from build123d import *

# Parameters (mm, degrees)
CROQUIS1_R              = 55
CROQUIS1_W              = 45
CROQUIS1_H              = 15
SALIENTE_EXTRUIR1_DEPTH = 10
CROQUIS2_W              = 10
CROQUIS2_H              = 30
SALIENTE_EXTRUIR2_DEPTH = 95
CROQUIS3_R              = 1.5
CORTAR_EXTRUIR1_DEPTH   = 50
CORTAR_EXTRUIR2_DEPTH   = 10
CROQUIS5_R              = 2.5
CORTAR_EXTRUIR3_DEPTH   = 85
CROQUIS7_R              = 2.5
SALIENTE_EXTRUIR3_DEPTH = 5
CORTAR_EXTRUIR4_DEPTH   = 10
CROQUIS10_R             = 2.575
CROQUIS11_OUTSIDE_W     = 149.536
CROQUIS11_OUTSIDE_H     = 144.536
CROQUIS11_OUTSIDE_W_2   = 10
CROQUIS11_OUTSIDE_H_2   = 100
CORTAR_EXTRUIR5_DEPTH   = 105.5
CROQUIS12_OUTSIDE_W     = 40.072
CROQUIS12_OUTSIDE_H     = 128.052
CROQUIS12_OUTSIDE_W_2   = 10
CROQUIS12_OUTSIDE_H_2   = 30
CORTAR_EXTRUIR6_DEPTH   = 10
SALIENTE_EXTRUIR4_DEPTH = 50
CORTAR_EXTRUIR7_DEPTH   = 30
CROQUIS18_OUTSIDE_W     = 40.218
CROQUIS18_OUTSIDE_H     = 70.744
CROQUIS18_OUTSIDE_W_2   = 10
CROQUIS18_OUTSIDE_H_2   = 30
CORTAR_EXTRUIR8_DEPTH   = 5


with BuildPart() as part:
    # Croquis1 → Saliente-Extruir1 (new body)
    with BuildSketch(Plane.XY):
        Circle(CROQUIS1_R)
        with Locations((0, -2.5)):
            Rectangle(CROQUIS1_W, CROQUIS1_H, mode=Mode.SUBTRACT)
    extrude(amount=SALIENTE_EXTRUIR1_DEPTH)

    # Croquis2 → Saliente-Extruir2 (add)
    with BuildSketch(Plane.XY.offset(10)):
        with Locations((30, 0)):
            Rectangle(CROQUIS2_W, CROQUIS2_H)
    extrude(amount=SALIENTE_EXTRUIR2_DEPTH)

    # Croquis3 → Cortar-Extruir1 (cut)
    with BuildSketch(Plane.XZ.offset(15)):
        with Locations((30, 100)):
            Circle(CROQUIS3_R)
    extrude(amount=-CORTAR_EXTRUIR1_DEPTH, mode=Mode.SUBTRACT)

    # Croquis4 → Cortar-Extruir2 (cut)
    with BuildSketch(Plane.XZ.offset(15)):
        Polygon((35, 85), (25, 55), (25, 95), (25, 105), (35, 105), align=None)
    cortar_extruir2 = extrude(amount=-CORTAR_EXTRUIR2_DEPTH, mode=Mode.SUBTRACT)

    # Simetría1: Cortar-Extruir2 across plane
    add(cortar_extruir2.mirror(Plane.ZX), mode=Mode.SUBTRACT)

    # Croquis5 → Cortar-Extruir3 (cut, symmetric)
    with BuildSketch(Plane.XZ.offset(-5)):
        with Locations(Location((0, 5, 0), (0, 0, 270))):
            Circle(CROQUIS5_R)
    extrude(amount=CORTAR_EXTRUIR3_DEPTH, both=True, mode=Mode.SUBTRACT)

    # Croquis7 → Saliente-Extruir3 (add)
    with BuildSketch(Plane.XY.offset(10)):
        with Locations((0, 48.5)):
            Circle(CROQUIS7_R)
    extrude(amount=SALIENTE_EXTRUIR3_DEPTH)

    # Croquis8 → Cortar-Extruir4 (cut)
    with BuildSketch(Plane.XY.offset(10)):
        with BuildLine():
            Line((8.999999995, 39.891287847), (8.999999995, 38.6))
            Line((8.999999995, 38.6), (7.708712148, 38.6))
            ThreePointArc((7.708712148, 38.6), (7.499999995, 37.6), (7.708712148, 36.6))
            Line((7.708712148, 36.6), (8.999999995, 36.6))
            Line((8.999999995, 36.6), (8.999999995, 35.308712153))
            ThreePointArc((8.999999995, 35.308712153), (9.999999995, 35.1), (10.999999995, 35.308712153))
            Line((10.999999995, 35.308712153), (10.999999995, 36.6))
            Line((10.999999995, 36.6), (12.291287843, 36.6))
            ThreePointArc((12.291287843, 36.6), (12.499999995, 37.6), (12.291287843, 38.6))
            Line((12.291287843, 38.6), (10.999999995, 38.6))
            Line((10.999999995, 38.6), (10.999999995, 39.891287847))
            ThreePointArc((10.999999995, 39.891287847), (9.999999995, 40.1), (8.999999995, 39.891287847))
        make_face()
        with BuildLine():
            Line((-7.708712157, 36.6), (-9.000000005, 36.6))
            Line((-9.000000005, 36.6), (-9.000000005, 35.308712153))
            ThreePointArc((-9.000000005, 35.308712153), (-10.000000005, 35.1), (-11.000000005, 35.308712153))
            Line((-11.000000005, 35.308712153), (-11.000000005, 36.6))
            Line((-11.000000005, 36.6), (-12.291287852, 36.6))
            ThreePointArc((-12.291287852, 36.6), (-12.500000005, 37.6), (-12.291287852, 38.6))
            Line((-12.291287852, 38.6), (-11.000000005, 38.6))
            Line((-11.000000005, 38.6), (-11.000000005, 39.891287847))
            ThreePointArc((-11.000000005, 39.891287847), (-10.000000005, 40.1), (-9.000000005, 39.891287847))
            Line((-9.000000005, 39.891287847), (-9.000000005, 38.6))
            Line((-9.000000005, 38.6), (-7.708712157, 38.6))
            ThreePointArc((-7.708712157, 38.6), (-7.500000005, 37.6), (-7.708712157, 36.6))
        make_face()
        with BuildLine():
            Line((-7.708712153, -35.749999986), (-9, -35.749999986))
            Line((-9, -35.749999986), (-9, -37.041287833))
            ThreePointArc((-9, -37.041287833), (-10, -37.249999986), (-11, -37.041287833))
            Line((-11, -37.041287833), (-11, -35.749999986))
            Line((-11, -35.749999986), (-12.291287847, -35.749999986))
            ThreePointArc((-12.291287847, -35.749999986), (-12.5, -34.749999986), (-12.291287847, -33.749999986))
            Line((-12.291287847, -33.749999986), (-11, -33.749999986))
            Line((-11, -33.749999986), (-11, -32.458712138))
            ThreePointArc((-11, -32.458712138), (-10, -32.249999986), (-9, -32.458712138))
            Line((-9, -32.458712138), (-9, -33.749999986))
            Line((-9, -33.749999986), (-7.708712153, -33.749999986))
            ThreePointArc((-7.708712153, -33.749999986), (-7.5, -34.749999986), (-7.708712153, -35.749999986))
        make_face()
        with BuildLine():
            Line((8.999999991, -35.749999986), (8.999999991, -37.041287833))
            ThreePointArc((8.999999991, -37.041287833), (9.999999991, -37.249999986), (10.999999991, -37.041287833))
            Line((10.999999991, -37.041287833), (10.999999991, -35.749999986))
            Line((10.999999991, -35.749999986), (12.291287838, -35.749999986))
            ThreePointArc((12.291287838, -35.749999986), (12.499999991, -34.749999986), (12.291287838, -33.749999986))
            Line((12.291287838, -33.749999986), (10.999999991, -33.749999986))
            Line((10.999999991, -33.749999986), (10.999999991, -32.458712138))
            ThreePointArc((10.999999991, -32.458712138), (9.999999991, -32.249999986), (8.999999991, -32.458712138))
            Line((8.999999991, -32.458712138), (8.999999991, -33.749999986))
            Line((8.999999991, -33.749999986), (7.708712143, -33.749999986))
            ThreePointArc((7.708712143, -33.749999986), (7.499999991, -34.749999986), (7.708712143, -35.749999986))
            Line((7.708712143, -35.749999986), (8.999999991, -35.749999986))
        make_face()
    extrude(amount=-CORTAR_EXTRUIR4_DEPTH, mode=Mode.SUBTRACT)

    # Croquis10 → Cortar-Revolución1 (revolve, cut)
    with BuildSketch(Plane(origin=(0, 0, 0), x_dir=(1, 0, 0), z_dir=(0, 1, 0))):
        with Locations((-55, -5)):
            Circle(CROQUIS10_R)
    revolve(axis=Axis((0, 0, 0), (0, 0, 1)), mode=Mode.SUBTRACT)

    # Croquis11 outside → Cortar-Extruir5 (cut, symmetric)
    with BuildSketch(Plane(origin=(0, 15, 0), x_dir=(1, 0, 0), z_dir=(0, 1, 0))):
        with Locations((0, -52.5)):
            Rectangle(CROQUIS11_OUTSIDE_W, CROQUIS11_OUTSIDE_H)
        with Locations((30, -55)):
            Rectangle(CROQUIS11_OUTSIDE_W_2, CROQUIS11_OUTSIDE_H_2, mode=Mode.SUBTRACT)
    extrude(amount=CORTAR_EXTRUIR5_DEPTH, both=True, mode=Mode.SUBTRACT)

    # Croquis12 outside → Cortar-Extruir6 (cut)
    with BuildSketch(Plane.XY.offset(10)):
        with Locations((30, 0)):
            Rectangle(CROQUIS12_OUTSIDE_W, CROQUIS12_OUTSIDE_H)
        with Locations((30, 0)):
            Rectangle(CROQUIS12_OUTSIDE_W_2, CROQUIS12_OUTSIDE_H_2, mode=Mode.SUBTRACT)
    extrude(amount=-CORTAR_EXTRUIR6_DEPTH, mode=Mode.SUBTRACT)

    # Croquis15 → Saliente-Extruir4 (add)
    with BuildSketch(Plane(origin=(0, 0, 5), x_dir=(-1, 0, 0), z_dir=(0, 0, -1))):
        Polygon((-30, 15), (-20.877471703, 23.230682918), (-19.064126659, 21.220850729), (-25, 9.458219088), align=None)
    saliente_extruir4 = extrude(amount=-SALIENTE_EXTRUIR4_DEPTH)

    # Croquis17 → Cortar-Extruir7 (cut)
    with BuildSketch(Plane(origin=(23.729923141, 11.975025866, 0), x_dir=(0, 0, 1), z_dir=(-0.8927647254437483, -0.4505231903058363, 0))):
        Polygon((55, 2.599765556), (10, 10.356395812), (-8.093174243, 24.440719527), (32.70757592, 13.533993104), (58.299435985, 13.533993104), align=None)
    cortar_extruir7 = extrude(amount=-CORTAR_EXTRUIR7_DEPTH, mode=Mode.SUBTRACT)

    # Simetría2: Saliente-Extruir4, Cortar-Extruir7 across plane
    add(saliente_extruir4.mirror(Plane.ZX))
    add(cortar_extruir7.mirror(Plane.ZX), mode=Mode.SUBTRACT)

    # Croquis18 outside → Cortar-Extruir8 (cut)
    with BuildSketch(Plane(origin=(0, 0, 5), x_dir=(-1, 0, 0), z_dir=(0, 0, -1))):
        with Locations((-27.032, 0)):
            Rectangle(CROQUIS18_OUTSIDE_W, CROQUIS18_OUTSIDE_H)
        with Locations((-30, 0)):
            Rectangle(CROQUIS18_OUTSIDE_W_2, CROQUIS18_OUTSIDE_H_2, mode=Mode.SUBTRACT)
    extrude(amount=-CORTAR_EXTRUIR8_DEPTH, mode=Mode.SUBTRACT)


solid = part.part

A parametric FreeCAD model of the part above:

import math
import FreeCAD as App
import Part
import Sketcher
from FreeCAD import Vector


def add_polygon(sketch, points):
    """Adds a closed chain of lines whose ends are joined by coincident constraints."""
    first, n = sketch.GeometryCount, len(points)
    for a, b in zip(points, points[1:] + points[:1]):
        sketch.addGeometry(Part.LineSegment(App.Vector(*a, 0), App.Vector(*b, 0)), False)
    for i in range(n):
        sketch.addConstraint(Sketcher.Constraint("Coincident", first + i, 2, first + (i + 1) % n, 1))

doc = App.newDocument("Part")
body = doc.addObject("PartDesign::Body", "Body")

# Sketch on XY plane
sketch1 = doc.addObject("Sketcher::SketchObject", "Sketch")
body.addObject(sketch1)
sketch1.AttachmentSupport = (doc.XY_Plane, [""])
sketch1.MapMode = "FlatFace"
sketch1.addGeometry(Part.Circle(Vector(0, 0, 0), Vector(0, 0, 1), 55), False)  # 0
add_polygon(sketch1, [(22, -10), (-22, -10), (-22, 5), (22, 5)])  # lines 1-4
sketch1.addConstraint([
    Sketcher.Constraint("Horizontal", 1),
    Sketcher.Constraint("Vertical", 2),
    Sketcher.Constraint("Horizontal", 3),
    Sketcher.Constraint("Vertical", 4),
    Sketcher.Constraint("Coincident", 0, 3, -1, 1),
    Sketcher.Constraint("Diameter", 0, 110.0),
    Sketcher.Constraint("DistanceX", 1, 2, 1, 1, 45.0),
    Sketcher.Constraint("DistanceY", 2, 1, 2, 2, 15.0),
    Sketcher.Constraint("DistanceY", 1, 2, -1, 1, 10.0),
    Sketcher.Constraint("DistanceX", 1, 2, -1, 1, 22.5),
])
pad1 = doc.addObject("PartDesign::Pad", "Pad")
body.addObject(pad1)
pad1.Profile = sketch1
pad1.Length = 10

# Sketch on XY plane
sketch2 = doc.addObject("Sketcher::SketchObject", "Sketch001")
body.addObject(sketch2)
sketch2.AttachmentSupport = (doc.XY_Plane, [""])
sketch2.MapMode = "FlatFace"
sketch2.AttachmentOffset = App.Placement(Vector(0, 0, 10), App.Rotation())
add_polygon(sketch2, [(25, 15), (25, -15), (35, -15), (35, 15)])  # lines 0-3
sketch2.addConstraint([
    Sketcher.Constraint("Vertical", 0),
    Sketcher.Constraint("Horizontal", 1),
    Sketcher.Constraint("Vertical", 2),
    Sketcher.Constraint("Horizontal", 3),
    Sketcher.Constraint("DistanceX", 1, 1, 1, 2, 10.0),
    Sketcher.Constraint("DistanceY", 0, 2, 0, 1, 30.0),
    Sketcher.Constraint("DistanceX", -1, 1, 0, 2, 25.0),
    Sketcher.Constraint("DistanceY", 0, 2, -1, 1, 15.0),
])
pad2 = doc.addObject("PartDesign::Pad", "Pad001")
body.addObject(pad2)
pad2.Profile = sketch2
pad2.Length = 95

# Sketch on XZ plane
sketch3 = doc.addObject("Sketcher::SketchObject", "Sketch002")
body.addObject(sketch3)
sketch3.AttachmentSupport = (doc.XZ_Plane, [""])
sketch3.MapMode = "FlatFace"
sketch3.AttachmentOffset = App.Placement(Vector(0, 0, 15), App.Rotation())
sketch3.addGeometry(Part.Circle(Vector(30, 100, 0), Vector(0, 0, 1), 1.5), False)
sketch3.addConstraint([
    Sketcher.Constraint("Diameter", 0, 3.0),
    Sketcher.Constraint("DistanceX", -1, 1, 0, 3, 30.0),
    Sketcher.Constraint("DistanceY", -1, 1, 0, 3, 100.0),
])
pocket1 = doc.addObject("PartDesign::Pocket", "Pocket")
body.addObject(pocket1)
pocket1.Profile = sketch3
pocket1.Length = 50

# Sketch on XZ plane
sketch4 = doc.addObject("Sketcher::SketchObject", "Sketch003")
body.addObject(sketch4)
sketch4.AttachmentSupport = (doc.XZ_Plane, [""])
sketch4.MapMode = "FlatFace"
sketch4.AttachmentOffset = App.Placement(Vector(0, 0, 15), App.Rotation())
add_polygon(sketch4, [(25, 55), (35, 85), (35, 105), (25, 105)])  # lines 0-3
sketch4.addConstraint([
    Sketcher.Constraint("Vertical", 1),
    Sketcher.Constraint("Horizontal", 2),
    Sketcher.Constraint("Vertical", 3),
    Sketcher.Constraint("DistanceX", 2, 2, 2, 1, 10.0),
    Sketcher.Constraint("DistanceY", 1, 1, 1, 2, 20.0),
    Sketcher.Constraint("DistanceY", 3, 2, 3, 1, 50.0),
    Sketcher.Constraint("DistanceX", -1, 1, 0, 2, 35.0),
    Sketcher.Constraint("DistanceY", -1, 1, 0, 2, 85.0),
])
pocket2 = doc.addObject("PartDesign::Pocket", "Pocket001")
body.addObject(pocket2)
pocket2.Profile = sketch4
pocket2.Length = 10
doc.recompute()

mirrored = doc.addObject("PartDesign::Mirrored", "Mirrored")
body.addObject(mirrored)
mirrored.Originals = [pocket2]
mirrored.MirrorPlane = (doc.XZ_Plane, [""])
body.Tip = mirrored

# Sketch on XZ plane
sketch5 = doc.addObject("Sketcher::SketchObject", "Sketch004")
body.addObject(sketch5)
sketch5.AttachmentSupport = (doc.XZ_Plane, [""])
sketch5.MapMode = "FlatFace"
sketch5.AttachmentOffset = App.Placement(Vector(0, 0, -5), App.Rotation())
sketch5.addGeometry(Part.Circle(Vector(0, 5, 0), Vector(0, 0, 1), 2.5), False)
sketch5.addConstraint([
    Sketcher.Constraint("PointOnObject", 0, 3, -2),
    Sketcher.Constraint("Diameter", 0, 5.0),
    Sketcher.Constraint("DistanceY", -1, 1, 0, 3, 5.0),
])
pocket3 = doc.addObject("PartDesign::Pocket", "Pocket002")
body.addObject(pocket3)
pocket3.Profile = sketch5
pocket3.Length = 170
pocket3.Midplane = True

# Sketch on XY plane
sketch6 = doc.addObject("Sketcher::SketchObject", "Sketch005")
body.addObject(sketch6)
sketch6.AttachmentSupport = (doc.XY_Plane, [""])
sketch6.MapMode = "FlatFace"
sketch6.AttachmentOffset = App.Placement(Vector(0, 0, 10), App.Rotation())
sketch6.addGeometry(Part.Circle(Vector(0, 48.5, 0), Vector(0, 0, 1), 2.5), False)
sketch6.addConstraint([
    Sketcher.Constraint("PointOnObject", 0, 3, -2),
    Sketcher.Constraint("Diameter", 0, 5.0),
    Sketcher.Constraint("DistanceY", -1, 1, 0, 3, 48.5),
])
pad3 = doc.addObject("PartDesign::Pad", "Pad002")
body.addObject(pad3)
pad3.Profile = sketch6
pad3.Length = 5

# Sketch on XY plane
sketch7 = doc.addObject("Sketcher::SketchObject", "Sketch006")
body.addObject(sketch7)
sketch7.AttachmentSupport = (doc.XY_Plane, [""])
sketch7.MapMode = "FlatFace"
sketch7.AttachmentOffset = App.Placement(Vector(0, 0, 10), App.Rotation())
sketch7.addGeometry([
    Part.LineSegment(Vector(9, 39.9, 0), Vector(9, 38.6, 0)),  # 0
    Part.LineSegment(Vector(9, 38.6, 0), Vector(7.7, 38.6, 0)),  # 1
    Part.ArcOfCircle(Part.Circle(Vector(10, 37.6, 0), Vector(0, 0, 1), 2.5), math.radians(156), math.radians(204)),  # 2
    Part.LineSegment(Vector(7.7, 36.6, 0), Vector(9, 36.6, 0)),  # 3
    Part.LineSegment(Vector(9, 36.6, 0), Vector(9, 35.3, 0)),  # 4
    Part.ArcOfCircle(Part.Circle(Vector(10, 37.6, 0), Vector(0, 0, 1), 2.5), math.radians(-114), math.radians(-66)),  # 5
    Part.LineSegment(Vector(11, 35.3, 0), Vector(11, 36.6, 0)),  # 6
    Part.LineSegment(Vector(11, 36.6, 0), Vector(12.3, 36.6, 0)),  # 7
    Part.ArcOfCircle(Part.Circle(Vector(10, 37.6, 0), Vector(0, 0, 1), 2.5), math.radians(-24), math.radians(24)),  # 8
    Part.LineSegment(Vector(12.3, 38.6, 0), Vector(11, 38.6, 0)),  # 9
    Part.LineSegment(Vector(11, 38.6, 0), Vector(11, 39.9, 0)),  # 10
    Part.ArcOfCircle(Part.Circle(Vector(10, 37.6, 0), Vector(0, 0, 1), 2.5), math.radians(66), math.radians(114)),  # 11
    Part.LineSegment(Vector(-9, 36.6, 0), Vector(-7.7, 36.6, 0)),  # 12
    Part.ArcOfCircle(Part.Circle(Vector(-10, 37.6, 0), Vector(0, 0, 1), 2.5), math.radians(-24), math.radians(24)),  # 13
    Part.LineSegment(Vector(-7.7, 38.6, 0), Vector(-9, 38.6, 0)),  # 14
    Part.LineSegment(Vector(-9, 38.6, 0), Vector(-9, 39.9, 0)),  # 15
    Part.ArcOfCircle(Part.Circle(Vector(-10, 37.6, 0), Vector(0, 0, 1), 2.5), math.radians(66), math.radians(114)),  # 16
    Part.LineSegment(Vector(-11, 39.9, 0), Vector(-11, 38.6, 0)),  # 17
    Part.LineSegment(Vector(-11, 38.6, 0), Vector(-12.3, 38.6, 0)),  # 18
    Part.ArcOfCircle(Part.Circle(Vector(-10, 37.6, 0), Vector(0, 0, 1), 2.5), math.radians(156), math.radians(204)),  # 19
    Part.LineSegment(Vector(-12.3, 36.6, 0), Vector(-11, 36.6, 0)),  # 20
    Part.LineSegment(Vector(-11, 36.6, 0), Vector(-11, 35.3, 0)),  # 21
    Part.ArcOfCircle(Part.Circle(Vector(-10, 37.6, 0), Vector(0, 0, 1), 2.5), math.radians(-114), math.radians(-66)),  # 22
    Part.LineSegment(Vector(-9, 35.3, 0), Vector(-9, 36.6, 0)),  # 23
    Part.LineSegment(Vector(-9, -35.7, 0), Vector(-7.7, -35.7, 0)),  # 24
    Part.ArcOfCircle(Part.Circle(Vector(-10, -34.7, 0), Vector(0, 0, 1), 2.5), math.radians(-24), math.radians(24)),  # 25
    Part.LineSegment(Vector(-7.7, -33.7, 0), Vector(-9, -33.7, 0)),  # 26
    Part.LineSegment(Vector(-9, -33.7, 0), Vector(-9, -32.5, 0)),  # 27
    Part.ArcOfCircle(Part.Circle(Vector(-10, -34.7, 0), Vector(0, 0, 1), 2.5), math.radians(66), math.radians(114)),  # 28
    Part.LineSegment(Vector(-11, -32.5, 0), Vector(-11, -33.7, 0)),  # 29
    Part.LineSegment(Vector(-11, -33.7, 0), Vector(-12.3, -33.7, 0)),  # 30
    Part.ArcOfCircle(Part.Circle(Vector(-10, -34.7, 0), Vector(0, 0, 1), 2.5), math.radians(156), math.radians(204)),  # 31
    Part.LineSegment(Vector(-12.3, -35.7, 0), Vector(-11, -35.7, 0)),  # 32
    Part.LineSegment(Vector(-11, -35.7, 0), Vector(-11, -37, 0)),  # 33
    Part.ArcOfCircle(Part.Circle(Vector(-10, -34.7, 0), Vector(0, 0, 1), 2.5), math.radians(-114), math.radians(-66)),  # 34
    Part.LineSegment(Vector(-9, -37, 0), Vector(-9, -35.7, 0)),  # 35
    Part.LineSegment(Vector(9, -35.7, 0), Vector(9, -37, 0)),  # 36
    Part.ArcOfCircle(Part.Circle(Vector(10, -34.7, 0), Vector(0, 0, 1), 2.5), math.radians(-114), math.radians(-66)),  # 37
    Part.LineSegment(Vector(11, -37, 0), Vector(11, -35.7, 0)),  # 38
    Part.LineSegment(Vector(11, -35.7, 0), Vector(12.3, -35.7, 0)),  # 39
    Part.ArcOfCircle(Part.Circle(Vector(10, -34.7, 0), Vector(0, 0, 1), 2.5), math.radians(-24), math.radians(24)),  # 40
    Part.LineSegment(Vector(12.3, -33.7, 0), Vector(11, -33.7, 0)),  # 41
    Part.LineSegment(Vector(11, -33.7, 0), Vector(11, -32.5, 0)),  # 42
    Part.ArcOfCircle(Part.Circle(Vector(10, -34.7, 0), Vector(0, 0, 1), 2.5), math.radians(66), math.radians(114)),  # 43
    Part.LineSegment(Vector(9, -32.5, 0), Vector(9, -33.7, 0)),  # 44
    Part.LineSegment(Vector(9, -33.7, 0), Vector(7.7, -33.7, 0)),  # 45
    Part.ArcOfCircle(Part.Circle(Vector(10, -34.7, 0), Vector(0, 0, 1), 2.5), math.radians(156), math.radians(204)),  # 46
    Part.LineSegment(Vector(7.7, -35.7, 0), Vector(9, -35.7, 0)),  # 47
], False)
sketch7.addConstraint([
    Sketcher.Constraint("Coincident", 0, 2, 1, 1),
    Sketcher.Constraint("Coincident", 1, 2, 2, 1),
    Sketcher.Constraint("Coincident", 2, 2, 3, 1),
    Sketcher.Constraint("Coincident", 3, 2, 4, 1),
    Sketcher.Constraint("Coincident", 4, 2, 5, 1),
    Sketcher.Constraint("Coincident", 5, 2, 6, 1),
    Sketcher.Constraint("Coincident", 6, 2, 7, 1),
    Sketcher.Constraint("Coincident", 7, 2, 8, 1),
    Sketcher.Constraint("Coincident", 8, 2, 9, 1),
    Sketcher.Constraint("Coincident", 9, 2, 10, 1),
    Sketcher.Constraint("Coincident", 10, 2, 11, 1),
    Sketcher.Constraint("Coincident", 11, 2, 0, 1),
    Sketcher.Constraint("Coincident", 12, 2, 13, 1),
    Sketcher.Constraint("Coincident", 13, 2, 14, 1),
    Sketcher.Constraint("Coincident", 14, 2, 15, 1),
    Sketcher.Constraint("Coincident", 15, 2, 16, 1),
    Sketcher.Constraint("Coincident", 16, 2, 17, 1),
    Sketcher.Constraint("Coincident", 17, 2, 18, 1),
    Sketcher.Constraint("Coincident", 18, 2, 19, 1),
    Sketcher.Constraint("Coincident", 19, 2, 20, 1),
    Sketcher.Constraint("Coincident", 20, 2, 21, 1),
    Sketcher.Constraint("Coincident", 21, 2, 22, 1),
    Sketcher.Constraint("Coincident", 22, 2, 23, 1),
    Sketcher.Constraint("Coincident", 23, 2, 12, 1),
    Sketcher.Constraint("Coincident", 24, 2, 25, 1),
    Sketcher.Constraint("Coincident", 25, 2, 26, 1),
    Sketcher.Constraint("Coincident", 26, 2, 27, 1),
    Sketcher.Constraint("Coincident", 27, 2, 28, 1),
    Sketcher.Constraint("Coincident", 28, 2, 29, 1),
    Sketcher.Constraint("Coincident", 29, 2, 30, 1),
    Sketcher.Constraint("Coincident", 30, 2, 31, 1),
    Sketcher.Constraint("Coincident", 31, 2, 32, 1),
    Sketcher.Constraint("Coincident", 32, 2, 33, 1),
    Sketcher.Constraint("Coincident", 33, 2, 34, 1),
    Sketcher.Constraint("Coincident", 34, 2, 35, 1),
    Sketcher.Constraint("Coincident", 35, 2, 24, 1),
    Sketcher.Constraint("Coincident", 36, 2, 37, 1),
    Sketcher.Constraint("Coincident", 37, 2, 38, 1),
    Sketcher.Constraint("Coincident", 38, 2, 39, 1),
    Sketcher.Constraint("Coincident", 39, 2, 40, 1),
    Sketcher.Constraint("Coincident", 40, 2, 41, 1),
    Sketcher.Constraint("Coincident", 41, 2, 42, 1),
    Sketcher.Constraint("Coincident", 42, 2, 43, 1),
    Sketcher.Constraint("Coincident", 43, 2, 44, 1),
    Sketcher.Constraint("Coincident", 44, 2, 45, 1),
    Sketcher.Constraint("Coincident", 45, 2, 46, 1),
    Sketcher.Constraint("Coincident", 46, 2, 47, 1),
    Sketcher.Constraint("Coincident", 47, 2, 36, 1),
    Sketcher.Constraint("Vertical", 0),
    Sketcher.Constraint("Horizontal", 1),
    Sketcher.Constraint("Horizontal", 3),
    Sketcher.Constraint("Vertical", 4),
    Sketcher.Constraint("Vertical", 6),
    Sketcher.Constraint("Horizontal", 7),
    Sketcher.Constraint("Horizontal", 9),
    Sketcher.Constraint("Vertical", 10),
    Sketcher.Constraint("Horizontal", 12),
    Sketcher.Constraint("Horizontal", 14),
    Sketcher.Constraint("Vertical", 15),
    Sketcher.Constraint("Vertical", 17),
    Sketcher.Constraint("Horizontal", 18),
    Sketcher.Constraint("Horizontal", 20),
    Sketcher.Constraint("Vertical", 21),
    Sketcher.Constraint("Vertical", 23),
    Sketcher.Constraint("Horizontal", 24),
    Sketcher.Constraint("Horizontal", 26),
    Sketcher.Constraint("Vertical", 27),
    Sketcher.Constraint("Vertical", 29),
    Sketcher.Constraint("Horizontal", 30),
    Sketcher.Constraint("Horizontal", 32),
    Sketcher.Constraint("Vertical", 33),
    Sketcher.Constraint("Vertical", 35),
    Sketcher.Constraint("Vertical", 36),
    Sketcher.Constraint("Vertical", 38),
    Sketcher.Constraint("Horizontal", 39),
    Sketcher.Constraint("Horizontal", 41),
    Sketcher.Constraint("Vertical", 42),
    Sketcher.Constraint("Vertical", 44),
    Sketcher.Constraint("Horizontal", 45),
    Sketcher.Constraint("Horizontal", 47),
    Sketcher.Constraint("Coincident", 5, 3, 2, 3),
    Sketcher.Constraint("Coincident", 8, 3, 2, 3),
    Sketcher.Constraint("Coincident", 11, 3, 2, 3),
    Sketcher.Constraint("Coincident", 16, 3, 13, 3),
    Sketcher.Constraint("Coincident", 19, 3, 13, 3),
    Sketcher.Constraint("Coincident", 22, 3, 13, 3),
    Sketcher.Constraint("Coincident", 28, 3, 25, 3),
    Sketcher.Constraint("Coincident", 31, 3, 25, 3),
    Sketcher.Constraint("Coincident", 34, 3, 25, 3),
    Sketcher.Constraint("Coincident", 40, 3, 37, 3),
    Sketcher.Constraint("Coincident", 43, 3, 37, 3),
    Sketcher.Constraint("Coincident", 46, 3, 37, 3),
    Sketcher.Constraint("Equal", 2, 5),
    Sketcher.Constraint("Equal", 5, 8),
    Sketcher.Constraint("Equal", 8, 11),
    Sketcher.Constraint("Equal", 11, 13),
    Sketcher.Constraint("Equal", 13, 16),
    Sketcher.Constraint("Equal", 16, 19),
    Sketcher.Constraint("Equal", 19, 22),
    Sketcher.Constraint("Equal", 22, 25),
    Sketcher.Constraint("Equal", 25, 28),
    Sketcher.Constraint("Equal", 28, 31),
    Sketcher.Constraint("Equal", 31, 34),
    Sketcher.Constraint("Equal", 34, 37),
    Sketcher.Constraint("Equal", 37, 40),
    Sketcher.Constraint("Equal", 40, 43),
    Sketcher.Constraint("Equal", 43, 46),
    Sketcher.Constraint("Symmetric", 2, 3, 13, 3, -2),
    Sketcher.Constraint("Symmetric", 25, 3, 37, 3, -2),
    Sketcher.Constraint("Symmetric", 0, 2, 14, 2, -2),
    Sketcher.Constraint("Symmetric", 9, 2, 17, 2, -2),
    Sketcher.Constraint("Symmetric", 6, 2, 20, 2, -2),
    Sketcher.Constraint("Symmetric", 3, 2, 23, 2, -2),
    Sketcher.Constraint("Symmetric", 32, 2, 38, 2, -2),
    Sketcher.Constraint("Symmetric", 29, 2, 41, 2, -2),
    Sketcher.Constraint("Symmetric", 26, 2, 44, 2, -2),
    Sketcher.Constraint("Symmetric", 35, 2, 47, 2, -2),
    Sketcher.Constraint("Horizontal", 4, 2, 5, 2),
    Sketcher.Constraint("Horizontal", 3, 2, 6, 2),
    Sketcher.Constraint("Horizontal", 1, 2, 8, 2),
    Sketcher.Constraint("Horizontal", 10, 2, 11, 2),
    Sketcher.Constraint("Horizontal", 27, 2, 28, 2),
    Sketcher.Constraint("Horizontal", 26, 2, 29, 2),
    Sketcher.Constraint("Horizontal", 24, 2, 31, 2),
    Sketcher.Constraint("Horizontal", 33, 2, 34, 2),
    Sketcher.Constraint("Vertical", 22, 3, 25, 3),
    Sketcher.Constraint("Vertical", 1, 2, 2, 2),
    Sketcher.Constraint("Vertical", 0, 2, 3, 2),
    Sketcher.Constraint("Vertical", 13, 2, 24, 2),
    Sketcher.Constraint("Vertical", 24, 2, 25, 2),
    Sketcher.Constraint("Vertical", 23, 2, 26, 2),
    Sketcher.Constraint("Vertical", 29, 2, 32, 2),
    Sketcher.Constraint("Equal", 47, 0),
    Sketcher.Constraint("Radius", 2, 2.5),
    Sketcher.Constraint("DistanceX", -1, 1, 2, 3, 10.0),
    Sketcher.Constraint("DistanceX", -1, 1, 0, 2, 9.0),
    Sketcher.Constraint("DistanceY", -1, 1, 2, 3, 37.6),
    Sketcher.Constraint("DistanceY", 25, 3, -1, 1, 34.75),
])
pocket4 = doc.addObject("PartDesign::Pocket", "Pocket003")
body.addObject(pocket4)
pocket4.Profile = sketch7
pocket4.Length = 10

# Sketch on XZ plane
sketch8 = doc.addObject("Sketcher::SketchObject", "Sketch007")
body.addObject(sketch8)
sketch8.AttachmentSupport = (doc.XZ_Plane, [""])
sketch8.MapMode = "FlatFace"
sketch8.addGeometry(Part.Circle(Vector(-55, 5, 0), Vector(0, 0, 1), 2.6), False)
sketch8.addConstraint([
    Sketcher.Constraint("Diameter", 0, 5.15),
    Sketcher.Constraint("DistanceX", 0, 3, -1, 1, 55.0),
    Sketcher.Constraint("DistanceY", -1, 1, 0, 3, 5.0),
])
groove = doc.addObject("PartDesign::Groove", "Groove")
body.addObject(groove)
groove.Profile = sketch8
groove.ReferenceAxis = (sketch8, ["V_Axis"])
groove.Angle = 360

# Sketch on XZ plane
sketch9 = doc.addObject("Sketcher::SketchObject", "Sketch008")
body.addObject(sketch9)
sketch9.AttachmentSupport = (doc.XZ_Plane, [""])
sketch9.MapMode = "FlatFace"
sketch9.AttachmentOffset = App.Placement(Vector(0, 0, -15), App.Rotation())
add_polygon(sketch9, [(-75, -20), (-75, 125), (75, 125), (75, -20)])  # lines 0-3
add_polygon(sketch9, [(35, 105), (25, 105), (25, 5), (35, 5)])  # lines 4-7
sketch9.addConstraint([
    Sketcher.Constraint("Vertical", 0),
    Sketcher.Constraint("Horizontal", 1),
    Sketcher.Constraint("Vertical", 2),
    Sketcher.Constraint("Horizontal", 3),
    Sketcher.Constraint("Horizontal", 4),
    Sketcher.Constraint("Vertical", 5),
    Sketcher.Constraint("Horizontal", 6),
    Sketcher.Constraint("Vertical", 7),
    Sketcher.Constraint("DistanceX", 4, 2, 4, 1, 10.0),
    Sketcher.Constraint("DistanceY", 5, 2, 5, 1, 100.0),
    Sketcher.Constraint("DistanceX", -1, 1, 4, 2, 25.0),
    Sketcher.Constraint("DistanceY", -1, 1, 4, 2, 105.0),
    Sketcher.Constraint("DistanceX", 1, 1, 1, 2, 149.536),
    Sketcher.Constraint("DistanceY", 0, 1, 0, 2, 144.536),
    Sketcher.Constraint("DistanceX", 0, 2, -1, 1, 74.768),
    Sketcher.Constraint("DistanceY", -1, 1, 0, 2, 124.768),
])
pocket5 = doc.addObject("PartDesign::Pocket", "Pocket004")
body.addObject(pocket5)
pocket5.Profile = sketch9
pocket5.Length = 211
pocket5.Midplane = True

# Sketch on XY plane
sketch10 = doc.addObject("Sketcher::SketchObject", "Sketch009")
body.addObject(sketch10)
sketch10.AttachmentSupport = (doc.XY_Plane, [""])
sketch10.MapMode = "FlatFace"
sketch10.AttachmentOffset = App.Placement(Vector(0, 0, 10), App.Rotation())
add_polygon(sketch10, [(10, 64), (10, -64), (50, -64), (50, 64)])  # lines 0-3
add_polygon(sketch10, [(35, -15), (25, -15), (25, 15), (35, 15)])  # lines 4-7
sketch10.addConstraint([
    Sketcher.Constraint("Vertical", 0),
    Sketcher.Constraint("Horizontal", 1),
    Sketcher.Constraint("Vertical", 2),
    Sketcher.Constraint("Horizontal", 3),
    Sketcher.Constraint("Horizontal", 4),
    Sketcher.Constraint("Vertical", 5),
    Sketcher.Constraint("Horizontal", 6),
    Sketcher.Constraint("Vertical", 7),
    Sketcher.Constraint("DistanceX", 4, 2, 4, 1, 10.0),
    Sketcher.Constraint("DistanceY", 5, 1, 5, 2, 30.0),
    Sketcher.Constraint("DistanceX", -1, 1, 4, 2, 25.0),
    Sketcher.Constraint("DistanceY", 4, 2, -1, 1, 15.0),
    Sketcher.Constraint("DistanceX", 1, 1, 1, 2, 40.072),
    Sketcher.Constraint("DistanceY", 0, 2, 0, 1, 128.052),
    Sketcher.Constraint("DistanceX", -1, 1, 0, 2, 9.964),
    Sketcher.Constraint("DistanceY", 0, 2, -1, 1, 64.026),
])
pocket6 = doc.addObject("PartDesign::Pocket", "Pocket005")
body.addObject(pocket6)
pocket6.Profile = sketch10
pocket6.Length = 10

# Sketch on XY plane
sketch11 = doc.addObject("Sketcher::SketchObject", "Sketch010")
body.addObject(sketch11)
sketch11.AttachmentSupport = (doc.XY_Plane, [""])
sketch11.MapMode = "FlatFace"
sketch11.AttachmentOffset = App.Placement(Vector(0, 0, 5), App.Rotation())
add_polygon(sketch11, [(20.9, 23.2), (30, 15), (25, 9.5), (19.1, 21.2)])  # lines 0-3
sketch11.addConstraint([
    Sketcher.Constraint("Perpendicular", 0, 1),
    Sketcher.Constraint("Parallel", 1, 3),
    Sketcher.Constraint("DistanceX", -1, 1, 0, 2, 30.0),
    Sketcher.Constraint("DistanceY", -1, 1, 0, 2, 15.0),
    Sketcher.Constraint("DistanceX", -1, 1, 1, 2, 25.0),
    Sketcher.Constraint("Distance", 2, 13.175511),
    Sketcher.Constraint("DistanceY", -1, 1, 1, 2, 9.458219),
    Sketcher.Constraint("DistanceY", -1, 1, 2, 2, 21.220851),
])
pad4 = doc.addObject("PartDesign::Pad", "Pad003")
body.addObject(pad4)
pad4.Profile = sketch11
pad4.Length = 50

# Sketch on an angled plane
sketch12 = doc.addObject("Sketcher::SketchObject", "Sketch011")
body.addObject(sketch12)
sketch12.Placement = App.Placement(Vector(23.729923, 11.975026, 0), App.Rotation(Vector(0, 0, 1), Vector(-0.45052319, 0.892764725, 0), Vector(-0.892764725, -0.45052319, 0), "ZXY"))
add_polygon(sketch12, [(10, 10), (55, 3), (58, 14), (33, 14), (-8, 24)])  # lines 0-4
sketch12.addConstraint([
    Sketcher.Constraint("Horizontal", 2),
    Sketcher.Constraint("DistanceX", -1, 1, 0, 2, 55.0),
    Sketcher.Constraint("DistanceX", -1, 1, 4, 2, 10.0),
    Sketcher.Constraint("DistanceX", 2, 2, 2, 1, 25.59186),
    Sketcher.Constraint("Distance", 0, 45.66361),
    Sketcher.Constraint("Distance", 1, 11.421191),
    Sketcher.Constraint("DistanceY", -1, 1, 3, 2, 24.44072),
    Sketcher.Constraint("DistanceX", 3, 2, 2, 2, 40.80075),
    Sketcher.Constraint("Distance", 3, 42.233374),
    Sketcher.Constraint("Distance", 4, 22.928827),
])
pocket7 = doc.addObject("PartDesign::Pocket", "Pocket006")
body.addObject(pocket7)
pocket7.Profile = sketch12
pocket7.Length = 30
doc.recompute()

mirrored2 = doc.addObject("PartDesign::Mirrored", "Mirrored001")
body.addObject(mirrored2)
mirrored2.Originals = [pad4, pocket7]
mirrored2.MirrorPlane = (doc.XZ_Plane, [""])
body.Tip = mirrored2

# Sketch on XY plane
sketch13 = doc.addObject("Sketcher::SketchObject", "Sketch012")
body.addObject(sketch13)
sketch13.AttachmentSupport = (doc.XY_Plane, [""])
sketch13.MapMode = "FlatFace"
sketch13.AttachmentOffset = App.Placement(Vector(0, 0, 5), App.Rotation())
add_polygon(sketch13, [(47, 35), (47, -35), (7, -35), (7, 35)])  # lines 0-3
add_polygon(sketch13, [(25, -15), (35, -15), (35, 15), (25, 15)])  # lines 4-7
sketch13.addConstraint([
    Sketcher.Constraint("Vertical", 0),
    Sketcher.Constraint("Horizontal", 1),
    Sketcher.Constraint("Vertical", 2),
    Sketcher.Constraint("Horizontal", 3),
    Sketcher.Constraint("Horizontal", 4),
    Sketcher.Constraint("Vertical", 5),
    Sketcher.Constraint("Horizontal", 6),
    Sketcher.Constraint("Vertical", 7),
    Sketcher.Constraint("DistanceX", 4, 1, 4, 2, 10.0),
    Sketcher.Constraint("DistanceY", 5, 1, 5, 2, 30.0),
    Sketcher.Constraint("DistanceX", -1, 1, 4, 2, 35.0),
    Sketcher.Constraint("DistanceY", 4, 2, -1, 1, 15.0),
    Sketcher.Constraint("DistanceX", 1, 2, 1, 1, 40.218),
    Sketcher.Constraint("DistanceY", 0, 2, 0, 1, 70.744),
    Sketcher.Constraint("DistanceX", -1, 1, 0, 2, 47.141),
    Sketcher.Constraint("DistanceY", 0, 2, -1, 1, 35.372),
])
pocket8 = doc.addObject("PartDesign::Pocket", "Pocket007")
body.addObject(pocket8)
pocket8.Profile = sketch13
pocket8.Length = 5
pocket8.Reversed = True

doc.recompute()
